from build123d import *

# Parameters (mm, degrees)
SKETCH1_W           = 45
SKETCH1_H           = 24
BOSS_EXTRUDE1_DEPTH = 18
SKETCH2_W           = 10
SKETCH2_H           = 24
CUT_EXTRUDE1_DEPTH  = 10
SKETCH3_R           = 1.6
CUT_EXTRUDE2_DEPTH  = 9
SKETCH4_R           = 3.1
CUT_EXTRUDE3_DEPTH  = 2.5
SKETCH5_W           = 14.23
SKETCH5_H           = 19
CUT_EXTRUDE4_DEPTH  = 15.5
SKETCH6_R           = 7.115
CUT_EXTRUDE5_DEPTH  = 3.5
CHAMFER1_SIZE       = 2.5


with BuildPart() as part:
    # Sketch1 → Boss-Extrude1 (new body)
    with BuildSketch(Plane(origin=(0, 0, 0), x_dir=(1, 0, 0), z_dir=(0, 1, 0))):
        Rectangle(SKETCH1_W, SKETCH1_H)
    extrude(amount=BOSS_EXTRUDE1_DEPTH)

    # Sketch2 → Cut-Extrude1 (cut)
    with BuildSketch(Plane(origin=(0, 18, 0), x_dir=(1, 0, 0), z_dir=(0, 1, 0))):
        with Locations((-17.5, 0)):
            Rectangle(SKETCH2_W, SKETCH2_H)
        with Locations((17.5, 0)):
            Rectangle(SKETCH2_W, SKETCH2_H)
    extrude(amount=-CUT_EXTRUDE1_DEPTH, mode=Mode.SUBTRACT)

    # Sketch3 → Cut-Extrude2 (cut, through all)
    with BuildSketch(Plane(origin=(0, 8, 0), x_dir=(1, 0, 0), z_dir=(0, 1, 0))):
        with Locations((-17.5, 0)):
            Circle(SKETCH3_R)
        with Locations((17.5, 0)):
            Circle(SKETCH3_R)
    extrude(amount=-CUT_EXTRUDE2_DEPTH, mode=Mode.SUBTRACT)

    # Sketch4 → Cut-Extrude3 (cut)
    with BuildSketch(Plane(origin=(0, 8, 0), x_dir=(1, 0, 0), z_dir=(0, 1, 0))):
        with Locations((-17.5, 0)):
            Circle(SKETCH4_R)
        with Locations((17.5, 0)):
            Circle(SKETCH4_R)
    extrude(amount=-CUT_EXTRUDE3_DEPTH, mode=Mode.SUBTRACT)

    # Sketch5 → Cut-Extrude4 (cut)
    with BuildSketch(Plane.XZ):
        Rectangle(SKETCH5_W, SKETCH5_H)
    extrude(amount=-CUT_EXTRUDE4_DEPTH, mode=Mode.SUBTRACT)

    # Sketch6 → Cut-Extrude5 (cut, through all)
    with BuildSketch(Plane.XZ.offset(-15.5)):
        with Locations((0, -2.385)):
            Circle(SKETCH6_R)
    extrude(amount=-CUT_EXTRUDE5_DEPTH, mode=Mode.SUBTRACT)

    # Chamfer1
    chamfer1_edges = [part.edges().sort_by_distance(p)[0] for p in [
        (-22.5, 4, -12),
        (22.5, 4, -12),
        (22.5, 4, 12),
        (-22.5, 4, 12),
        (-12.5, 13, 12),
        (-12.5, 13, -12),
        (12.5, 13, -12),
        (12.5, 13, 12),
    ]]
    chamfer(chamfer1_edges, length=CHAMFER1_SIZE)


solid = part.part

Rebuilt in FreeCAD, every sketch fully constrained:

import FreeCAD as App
import Part
import Sketcher
from FreeCAD import Vector
Q = App.Units.Quantity


def edges_at(feature, points):
    """Names of the edges that pass closest to the given points."""
    edges = feature.Shape.Edges
    near = lambda p: min(range(len(edges)), key=lambda i: edges[i].distToShape(Part.Vertex(*p))[0])
    return sorted({f"Edge{near(p) + 1}" for p in points})


def add_polygon(sketch, points):
    """Adds a closed chain of lines whose ends are joined by coincident constraints."""
    first, n = sketch.GeometryCount, len(points)
    for a, b in zip(points, points[1:] + points[:1]):
        sketch.addGeometry(Part.LineSegment(App.Vector(*a, 0), App.Vector(*b, 0)), False)
    for i in range(n):
        sketch.addConstraint(Sketcher.Constraint("Coincident", first + i, 2, first + (i + 1) % n, 1))

doc = App.newDocument("Part")
body = doc.addObject("PartDesign::Body", "Body")

sketch1 = body.newObject("Sketcher::SketchObject", "Sketch")
sketch1.AttachmentSupport = (doc.getObject("XZ_Plane"), [""])
sketch1.MapMode = "FlatFace"
add_polygon(sketch1, [(-22, -12), (-22, 12), (22, 12), (22, -12)])
sketch1.addConstraint([
    Sketcher.Constraint("Vertical", 0),
    Sketcher.Constraint("Horizontal", 1),
    Sketcher.Constraint("Vertical", 2),
    Sketcher.Constraint("Horizontal", 3),
    Sketcher.Constraint("Symmetric", 0, 2, 2, 2, -1, 1),
    Sketcher.Constraint("DistanceX", 1, 1, 1, 2, Q("45 mm")),
    Sketcher.Constraint("DistanceY", 0, 1, 0, 2, Q("24 mm")),
])
pad1 = body.newObject("PartDesign::Pad", "Pad")
pad1.Profile = sketch1
pad1.Length = 18
pad1.Reversed = True

sketch2 = body.newObject("Sketcher::SketchObject", "Sketch001")
sketch2.AttachmentSupport = (doc.getObject("XZ_Plane"), [""])
sketch2.MapMode = "FlatFace"
sketch2.AttachmentOffset = App.Placement(Vector(0, 0, -18), App.Rotation())
add_polygon(sketch2, [(-22, -12), (-22, 12), (-12, 12), (-12, -12)])
add_polygon(sketch2, [(12, -12), (12, 12), (22, 12), (22, -12)])
sketch2.addConstraint([
    Sketcher.Constraint("Vertical", 0),
    Sketcher.Constraint("Horizontal", 1),
    Sketcher.Constraint("Vertical", 2),
    Sketcher.Constraint("Horizontal", 3),
    Sketcher.Constraint("Vertical", 4),
    Sketcher.Constraint("Horizontal", 5),
    Sketcher.Constraint("Vertical", 6),
    Sketcher.Constraint("Horizontal", 7),
    Sketcher.Constraint("Symmetric", 2, 2, 4, 2, -1, 1),
    Sketcher.Constraint("Symmetric", 0, 2, 6, 2, -1, 1),
    Sketcher.Constraint("Horizontal", 1, 2, 4, 2),
    Sketcher.Constraint("DistanceX", 1, 1, 1, 2, Q("10 mm")),
    Sketcher.Constraint("DistanceY", 0, 1, 0, 2, Q("24 mm")),
    Sketcher.Constraint("DistanceX", 1, 2, 4, 2, Q("25 mm")),
])
pocket1 = body.newObject("PartDesign::Pocket", "Pocket")
pocket1.Profile = sketch2
pocket1.Length = 10
pocket1.Reversed = True

sketch3 = body.newObject("Sketcher::SketchObject", "Sketch002")
sketch3.AttachmentSupport = (doc.getObject("XZ_Plane"), [""])
sketch3.MapMode = "FlatFace"
sketch3.AttachmentOffset = App.Placement(Vector(0, 0, -8), App.Rotation())
sketch3.addGeometry([
    Part.Circle(Vector(-17.5, 0, 0), Vector(0, 0, 1), 1.6),
    Part.Circle(Vector(17.5, 0, 0), Vector(0, 0, 1), 1.6),
], False)
sketch3.addConstraint([
    Sketcher.Constraint("Equal", 0, 1),
    Sketcher.Constraint("Symmetric", 0, 3, 1, 3, -1, 1),
    Sketcher.Constraint("PointOnObject", 0, 3, -1),
    Sketcher.Constraint("Diameter", 0, Q("3.2 mm")),
    Sketcher.Constraint("DistanceX", 0, 3, 1, 3, Q("35 mm")),
])
pocket2 = body.newObject("PartDesign::Pocket", "Pocket001")
pocket2.Profile = sketch3
pocket2.Type = "ThroughAll"
pocket2.Reversed = True

sketch4 = body.newObject("Sketcher::SketchObject", "Sketch003")
sketch4.AttachmentSupport = (doc.getObject("XZ_Plane"), [""])
sketch4.MapMode = "FlatFace"
sketch4.AttachmentOffset = App.Placement(Vector(0, 0, -8), App.Rotation())
sketch4.addGeometry([
    Part.Circle(Vector(-17.5, 0, 0), Vector(0, 0, 1), 3.1),
    Part.Circle(Vector(17.5, 0, 0), Vector(0, 0, 1), 3.1),
], False)
sketch4.addConstraint([
    Sketcher.Constraint("Equal", 0, 1),
    Sketcher.Constraint("Symmetric", 0, 3, 1, 3, -1, 1),
    Sketcher.Constraint("PointOnObject", 0, 3, -1),
    Sketcher.Constraint("Diameter", 0, Q("6.2 mm")),
    Sketcher.Constraint("DistanceX", 0, 3, 1, 3, Q("35 mm")),
])
pocket3 = body.newObject("PartDesign::Pocket", "Pocket002")
pocket3.Profile = sketch4
pocket3.Length = 2.5
pocket3.Reversed = True

sketch5 = body.newObject("Sketcher::SketchObject", "Sketch004")
sketch5.AttachmentSupport = (doc.getObject("XZ_Plane"), [""])
sketch5.MapMode = "FlatFace"
add_polygon(sketch5, [(-7, 10), (-7, -10), (7, -10), (7, 10)])
sketch5.addConstraint([
    Sketcher.Constraint("Vertical", 0),
    Sketcher.Constraint("Horizontal", 1),
    Sketcher.Constraint("Vertical", 2),
    Sketcher.Constraint("Horizontal", 3),
    Sketcher.Constraint("Symmetric", 0, 2, 2, 2, -1, 1),
    Sketcher.Constraint("DistanceY", 0, 2, 0, 1, Q("19 mm")),
    Sketcher.Constraint("DistanceX", 1, 1, 1, 2, Q("14.23 mm")),
])
pocket4 = body.newObject("PartDesign::Pocket", "Pocket003")
pocket4.Profile = sketch5
pocket4.Length = 15.5

sketch6 = body.newObject("Sketcher::SketchObject", "Sketch005")
sketch6.AttachmentSupport = (doc.getObject("XZ_Plane"), [""])
sketch6.MapMode = "FlatFace"
sketch6.AttachmentOffset = App.Placement(Vector(0, 0, -15.5), App.Rotation())
sketch6.addGeometry(Part.Circle(Vector(0, -2, 0), Vector(0, 0, 1), 7), False)
sketch6.addConstraint([
    Sketcher.Constraint("PointOnObject", 0, 3, -2),
    Sketcher.Constraint("Diameter", 0, Q("14.23 mm")),
    Sketcher.Constraint("DistanceY", 0, 3, -1, 1, Q("2.385 mm")),
])
pocket5 = body.newObject("PartDesign::Pocket", "Pocket004")
pocket5.Profile = sketch6
pocket5.Type = "ThroughAll"
doc.recompute()

chamfer = body.newObject("PartDesign::Chamfer", "Chamfer")
chamfer.Base = (pocket5, edges_at(pocket5, [
    (-22.5, 4, -12),
    (22.5, 4, -12),
    (22.5, 4, 12),
    (-22.5, 4, 12),
    (-12.5, 13, 12),
    (-12.5, 13, -12),
    (12.5, 13, -12),
    (12.5, 13, 12),
]))
chamfer.Size = 2.5

doc.recompute()
